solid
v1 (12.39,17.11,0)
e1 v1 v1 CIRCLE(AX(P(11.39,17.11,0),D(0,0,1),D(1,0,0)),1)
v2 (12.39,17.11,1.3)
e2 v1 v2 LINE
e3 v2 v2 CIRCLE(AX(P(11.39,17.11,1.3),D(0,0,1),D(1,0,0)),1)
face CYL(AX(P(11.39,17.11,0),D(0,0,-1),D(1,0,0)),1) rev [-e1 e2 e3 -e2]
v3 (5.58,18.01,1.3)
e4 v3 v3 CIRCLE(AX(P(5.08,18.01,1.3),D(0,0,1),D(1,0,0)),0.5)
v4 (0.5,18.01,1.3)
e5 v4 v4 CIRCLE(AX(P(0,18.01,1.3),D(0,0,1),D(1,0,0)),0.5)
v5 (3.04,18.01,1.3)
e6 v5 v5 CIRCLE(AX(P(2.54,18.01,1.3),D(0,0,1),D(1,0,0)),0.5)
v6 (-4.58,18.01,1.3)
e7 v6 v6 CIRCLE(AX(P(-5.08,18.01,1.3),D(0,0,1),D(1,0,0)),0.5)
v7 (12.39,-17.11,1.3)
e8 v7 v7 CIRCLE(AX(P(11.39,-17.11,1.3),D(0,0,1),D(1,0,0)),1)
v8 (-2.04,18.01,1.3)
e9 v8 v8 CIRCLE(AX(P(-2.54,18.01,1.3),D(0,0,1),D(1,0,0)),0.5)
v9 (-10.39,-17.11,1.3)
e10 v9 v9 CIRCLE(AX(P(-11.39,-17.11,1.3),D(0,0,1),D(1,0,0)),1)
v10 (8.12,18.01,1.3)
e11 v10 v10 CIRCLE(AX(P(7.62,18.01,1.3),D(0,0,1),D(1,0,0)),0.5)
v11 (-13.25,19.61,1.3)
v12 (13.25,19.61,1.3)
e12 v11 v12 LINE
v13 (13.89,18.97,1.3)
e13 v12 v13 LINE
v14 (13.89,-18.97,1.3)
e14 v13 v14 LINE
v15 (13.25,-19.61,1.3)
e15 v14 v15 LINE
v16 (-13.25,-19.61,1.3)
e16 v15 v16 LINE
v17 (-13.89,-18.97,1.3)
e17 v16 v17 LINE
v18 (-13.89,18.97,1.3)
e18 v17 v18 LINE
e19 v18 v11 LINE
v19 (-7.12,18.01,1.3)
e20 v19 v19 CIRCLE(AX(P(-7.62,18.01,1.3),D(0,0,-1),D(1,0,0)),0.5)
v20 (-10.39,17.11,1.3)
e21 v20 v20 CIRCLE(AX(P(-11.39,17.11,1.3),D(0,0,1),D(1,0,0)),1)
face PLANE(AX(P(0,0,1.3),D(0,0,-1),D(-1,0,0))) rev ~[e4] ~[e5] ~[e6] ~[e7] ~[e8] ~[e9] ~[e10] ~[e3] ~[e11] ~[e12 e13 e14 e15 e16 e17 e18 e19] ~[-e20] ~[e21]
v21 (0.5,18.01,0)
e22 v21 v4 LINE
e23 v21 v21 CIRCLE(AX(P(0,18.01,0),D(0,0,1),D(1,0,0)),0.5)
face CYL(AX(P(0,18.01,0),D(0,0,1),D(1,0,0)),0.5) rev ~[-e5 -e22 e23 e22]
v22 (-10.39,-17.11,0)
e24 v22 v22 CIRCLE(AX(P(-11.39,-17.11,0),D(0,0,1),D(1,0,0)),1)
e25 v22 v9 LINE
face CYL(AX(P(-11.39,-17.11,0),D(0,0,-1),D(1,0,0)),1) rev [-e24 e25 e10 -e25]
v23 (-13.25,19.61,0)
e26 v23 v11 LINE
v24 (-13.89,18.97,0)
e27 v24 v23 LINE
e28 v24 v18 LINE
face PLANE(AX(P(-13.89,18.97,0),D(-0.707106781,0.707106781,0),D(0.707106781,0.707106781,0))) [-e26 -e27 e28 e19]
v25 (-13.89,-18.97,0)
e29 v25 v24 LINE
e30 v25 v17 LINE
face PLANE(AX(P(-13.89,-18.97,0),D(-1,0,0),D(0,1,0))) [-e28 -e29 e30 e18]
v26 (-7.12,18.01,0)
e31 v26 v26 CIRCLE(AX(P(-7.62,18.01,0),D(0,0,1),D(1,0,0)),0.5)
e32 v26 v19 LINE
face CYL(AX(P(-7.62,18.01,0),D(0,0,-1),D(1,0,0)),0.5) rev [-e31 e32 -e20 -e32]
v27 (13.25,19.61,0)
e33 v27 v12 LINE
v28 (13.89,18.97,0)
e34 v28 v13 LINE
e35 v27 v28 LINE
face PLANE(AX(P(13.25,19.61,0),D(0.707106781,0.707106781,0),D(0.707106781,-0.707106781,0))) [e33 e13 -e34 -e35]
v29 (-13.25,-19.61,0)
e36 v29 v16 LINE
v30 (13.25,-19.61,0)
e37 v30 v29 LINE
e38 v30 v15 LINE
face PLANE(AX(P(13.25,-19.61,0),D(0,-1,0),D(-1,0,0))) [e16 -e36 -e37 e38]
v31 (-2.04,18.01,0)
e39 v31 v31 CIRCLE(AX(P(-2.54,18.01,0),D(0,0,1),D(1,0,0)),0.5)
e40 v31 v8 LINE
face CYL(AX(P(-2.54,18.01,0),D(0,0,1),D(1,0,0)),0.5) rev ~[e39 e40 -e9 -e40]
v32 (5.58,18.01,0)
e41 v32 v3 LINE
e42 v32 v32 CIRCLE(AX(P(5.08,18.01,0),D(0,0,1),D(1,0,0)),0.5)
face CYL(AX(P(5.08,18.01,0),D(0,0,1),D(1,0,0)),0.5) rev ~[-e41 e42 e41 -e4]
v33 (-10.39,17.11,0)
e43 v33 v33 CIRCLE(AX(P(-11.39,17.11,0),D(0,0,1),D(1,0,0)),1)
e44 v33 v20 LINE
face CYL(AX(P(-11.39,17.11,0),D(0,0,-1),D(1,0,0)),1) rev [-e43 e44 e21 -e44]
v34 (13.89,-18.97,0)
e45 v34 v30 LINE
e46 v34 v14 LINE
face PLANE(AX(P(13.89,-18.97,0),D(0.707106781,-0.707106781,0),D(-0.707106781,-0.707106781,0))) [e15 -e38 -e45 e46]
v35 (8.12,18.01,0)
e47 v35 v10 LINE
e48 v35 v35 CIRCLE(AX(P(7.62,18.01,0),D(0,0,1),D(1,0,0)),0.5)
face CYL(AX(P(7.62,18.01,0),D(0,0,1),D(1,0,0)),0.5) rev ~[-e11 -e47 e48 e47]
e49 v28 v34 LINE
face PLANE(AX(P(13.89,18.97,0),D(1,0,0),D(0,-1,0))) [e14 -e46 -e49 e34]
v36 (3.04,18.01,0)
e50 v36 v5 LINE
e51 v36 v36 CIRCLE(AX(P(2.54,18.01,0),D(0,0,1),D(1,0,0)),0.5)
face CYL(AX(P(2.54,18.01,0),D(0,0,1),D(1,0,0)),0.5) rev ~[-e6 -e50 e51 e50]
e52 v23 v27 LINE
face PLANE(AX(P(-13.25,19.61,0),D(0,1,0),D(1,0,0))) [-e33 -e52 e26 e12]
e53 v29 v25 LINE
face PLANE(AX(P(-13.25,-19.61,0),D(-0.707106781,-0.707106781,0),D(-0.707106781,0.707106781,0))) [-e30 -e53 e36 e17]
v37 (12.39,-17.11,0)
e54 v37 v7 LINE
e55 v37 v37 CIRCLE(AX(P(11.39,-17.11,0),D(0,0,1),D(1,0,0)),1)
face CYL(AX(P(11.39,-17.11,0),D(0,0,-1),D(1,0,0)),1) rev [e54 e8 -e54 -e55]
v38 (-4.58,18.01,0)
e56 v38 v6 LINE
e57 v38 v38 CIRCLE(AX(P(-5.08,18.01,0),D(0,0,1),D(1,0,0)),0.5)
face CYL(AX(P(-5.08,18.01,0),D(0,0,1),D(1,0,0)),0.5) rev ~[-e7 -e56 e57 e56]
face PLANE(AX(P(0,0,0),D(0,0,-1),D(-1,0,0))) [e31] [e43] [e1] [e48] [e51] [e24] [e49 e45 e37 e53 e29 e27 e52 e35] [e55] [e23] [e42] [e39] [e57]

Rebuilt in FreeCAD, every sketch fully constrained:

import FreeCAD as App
import Part
import Sketcher

V = App.Vector

doc = App.newDocument("Part")
params = doc.addObject("Spreadsheet::Sheet", "Params")
for row, (alias, value) in enumerate([
    ("sketch1_diameter", "2 mm"),
    ("sketch1_width", "26.5 mm"),
    ("sketch1_height", "37.94 mm"),
    ("pad1_length", "1.3 mm"),
    ("sketch2_diameter", "1 mm"),
    ("linearpattern_pitch", "2.54 mm"),
], start=1):
    params.set(f"A{row}", alias)
    params.set(f"B{row}", "=" + value)
    params.setAlias(f"B{row}", alias)

body = doc.addObject("PartDesign::Body", "Body")

sketch1 = body.newObject("Sketcher::SketchObject", "Sketch")
sketch1.AttachmentSupport = (doc.getObject("XY_Plane"), [""])
sketch1.MapMode = "FlatFace"
sketch1.addGeometry([
    Part.LineSegment(V(13.25, 19.61, 0), V(-13.25, 19.61, 0)),
    Part.LineSegment(V(-13.25, 19.61, 0), V(-13.89, 18.97, 0)),
    Part.LineSegment(V(-13.89, 18.97, 0), V(-13.89, -18.97, 0)),
    Part.LineSegment(V(-13.89, -18.97, 0), V(-13.25, -19.61, 0)),
    Part.LineSegment(V(-13.25, -19.61, 0), V(13.25, -19.61, 0)),
    Part.LineSegment(V(13.25, -19.61, 0), V(13.89, -18.97, 0)),
    Part.LineSegment(V(13.89, -18.97, 0), V(13.89, 18.97, 0)),
    Part.LineSegment(V(13.89, 18.97, 0), V(13.25, 19.61, 0)),
    Part.Circle(V(11.39, -17.11, 0), V(0, 0, 1), 1),
    Part.Circle(V(-11.39, -17.11, 0), V(0, 0, 1), 1),
    Part.Circle(V(11.39, 17.11, 0), V(0, 0, 1), 1),
    Part.Circle(V(-11.39, 17.11, 0), V(0, 0, 1), 1),
], False)
sketch1.addConstraint([
    Sketcher.Constraint("Coincident", 0, 2, 1, 1),
    Sketcher.Constraint("Coincident", 1, 2, 2, 1),
    Sketcher.Constraint("Coincident", 2, 2, 3, 1),
    Sketcher.Constraint("Coincident", 3, 2, 4, 1),
    Sketcher.Constraint("Coincident", 4, 2, 5, 1),
    Sketcher.Constraint("Coincident", 5, 2, 6, 1),
    Sketcher.Constraint("Coincident", 6, 2, 7, 1),
    Sketcher.Constraint("Coincident", 7, 2, 0, 1),
    Sketcher.Constraint("Horizontal", 0),
    Sketcher.Constraint("Vertical", 2),
    Sketcher.Constraint("Horizontal", 4),
    Sketcher.Constraint("Vertical", 6),
    Sketcher.Constraint("Equal", 8, 9),
    Sketcher.Constraint("Equal", 9, 10),
    Sketcher.Constraint("Equal", 10, 11),
    Sketcher.Constraint("Symmetric", 9, 3, 10, 3, -1, 1),
    Sketcher.Constraint("Symmetric", 8, 3, 11, 3, -1, 1),
    Sketcher.Constraint("Symmetric", 0, 2, 4, 2, -1, 1),
    Sketcher.Constraint("Symmetric", 1, 2, 5, 2, -1, 1),
    Sketcher.Constraint("Symmetric", 8, 3, 9, 3, -2),
    Sketcher.Constraint("Perpendicular", 1, 3),
    Sketcher.Constraint("Perpendicular", 5, 7),
    Sketcher.Constraint("Horizontal", 2, 2, 5, 2),
    Sketcher.Constraint("Horizontal", 1, 2, 6, 2),
    Sketcher.Constraint("Vertical", 0, 2, 3, 2),
    Sketcher.Constraint("Diameter", 8, 2.0),
    Sketcher.Constraint("DistanceX", 0, 2, 0, 1, 26.5),
    Sketcher.Constraint("DistanceY", 2, 2, 2, 1, 37.94),
    Sketcher.Constraint("DistanceY", 11, 3, 0, 2, 2.5),
    Sketcher.Constraint("DistanceX", 1, 2, 11, 3, 2.5),
    Sketcher.Constraint("DistanceX", -1, 1, 8, 3, 11.39),
])
sketch1.setExpression("Constraints[25]", "Params.sketch1_diameter")
sketch1.setExpression("Constraints[26]", "Params.sketch1_width")
sketch1.setExpression("Constraints[27]", "Params.sketch1_height")
pad1 = body.newObject("PartDesign::Pad", "Pad")
pad1.Profile = sketch1
pad1.setExpression("Length", "Params.pad1_length")

sketch2 = body.newObject("Sketcher::SketchObject", "Sketch001")
sketch2.AttachmentSupport = (doc.getObject("XY_Plane"), [""])
sketch2.MapMode = "FlatFace"
sketch2.addGeometry(Part.Circle(V(-7.62, 18.01, 0), V(0, 0, 1), 0.5), False)
sketch2.addConstraint([
    Sketcher.Constraint("Diameter", 0, 1.0),
    Sketcher.Constraint("DistanceX", 0, 3, -1, 1, 7.62),
    Sketcher.Constraint("DistanceY", -1, 1, 0, 3, 18.01),
])
sketch2.setExpression("Constraints[0]", "Params.sketch2_diameter")
pocket1 = body.newObject("PartDesign::Pocket", "Pocket")
pocket1.Profile = sketch2
pocket1.Type = "ThroughAll"
pocket1.Midplane = True
doc.recompute()

linearpattern = body.newObject("PartDesign::LinearPattern", "LinearPattern")
linearpattern.Originals = [pocket1]
linearpattern.Direction = (doc.getObject("X_Axis"), [""])
linearpattern.Mode = "offset"
linearpattern.setExpression("Offset", "Params.linearpattern_pitch")
linearpattern.Occurrences = 7
body.Tip = linearpattern

doc.recompute()
